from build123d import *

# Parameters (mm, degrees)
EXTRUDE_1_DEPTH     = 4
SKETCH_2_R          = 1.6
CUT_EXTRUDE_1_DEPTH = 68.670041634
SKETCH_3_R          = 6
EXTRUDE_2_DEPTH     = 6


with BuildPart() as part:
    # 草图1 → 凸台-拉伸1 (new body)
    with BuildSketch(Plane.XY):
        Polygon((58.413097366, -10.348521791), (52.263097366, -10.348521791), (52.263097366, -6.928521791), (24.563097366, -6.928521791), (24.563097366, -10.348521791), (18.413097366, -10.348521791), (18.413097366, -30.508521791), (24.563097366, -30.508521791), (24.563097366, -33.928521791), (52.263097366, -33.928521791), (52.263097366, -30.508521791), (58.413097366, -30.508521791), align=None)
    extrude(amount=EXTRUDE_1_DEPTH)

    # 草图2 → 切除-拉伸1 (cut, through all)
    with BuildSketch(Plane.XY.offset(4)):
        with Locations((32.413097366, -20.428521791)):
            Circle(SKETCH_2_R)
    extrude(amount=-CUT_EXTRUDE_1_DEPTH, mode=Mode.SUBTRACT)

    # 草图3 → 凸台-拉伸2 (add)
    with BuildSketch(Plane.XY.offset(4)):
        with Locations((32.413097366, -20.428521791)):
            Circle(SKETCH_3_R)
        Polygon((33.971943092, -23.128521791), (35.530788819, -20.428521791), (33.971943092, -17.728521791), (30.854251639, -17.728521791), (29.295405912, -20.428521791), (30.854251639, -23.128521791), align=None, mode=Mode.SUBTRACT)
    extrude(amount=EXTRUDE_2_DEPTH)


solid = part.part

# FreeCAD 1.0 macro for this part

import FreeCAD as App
import Part
import Sketcher

V = App.Vector
Q = App.Units.Quantity


def add_polygon(sketch, points):
    """Adds a closed chain of lines whose ends are joined by coincident constraints."""
    first, n = sketch.GeometryCount, len(points)
    for a, b in zip(points, points[1:] + points[:1]):
        sketch.addGeometry(Part.LineSegment(App.Vector(*a, 0), App.Vector(*b, 0)), False)
    for i in range(n):
        sketch.addConstraint(Sketcher.Constraint("Coincident", first + i, 2, first + (i + 1) % n, 1))

doc = App.newDocument("Part")
body = doc.addObject("PartDesign::Body", "Body")

# Sketch on XY plane
sketch1 = body.newObject("Sketcher::SketchObject", "Sketch")
sketch1.AttachmentSupport = (doc.getObject("XY_Plane"), [""])
sketch1.MapMode = "FlatFace"
add_polygon(sketch1, [(58.413097, -10.348522), (52.263097, -10.348522), (52.263097, -6.928522), (24.563097, -6.928522), (24.563097, -10.348522), (18.413097, -10.348522), (18.413097, -30.508522), (24.563097, -30.508522), (24.563097, -33.928522), (52.263097, -33.928522), (52.263097, -30.508522), (58.413097, -30.508522)])  # lines 0-11
sketch1.addConstraint(Sketcher.Constraint("Horizontal", 0))
sketch1.addConstraint(Sketcher.Constraint("Vertical", 1))
sketch1.addConstraint(Sketcher.Constraint("Horizontal", 2))
sketch1.addConstraint(Sketcher.Constraint("Vertical", 3))
sketch1.addConstraint(Sketcher.Constraint("Horizontal", 4))
sketch1.addConstraint(Sketcher.Constraint("Vertical", 5))
sketch1.addConstraint(Sketcher.Constraint("Horizontal", 6))
sketch1.addConstraint(Sketcher.Constraint("Vertical", 7))
sketch1.addConstraint(Sketcher.Constraint("Horizontal", 8))
sketch1.addConstraint(Sketcher.Constraint("Vertical", 9))
sketch1.addConstraint(Sketcher.Constraint("Horizontal", 10))
sketch1.addConstraint(Sketcher.Constraint("Vertical", 11))
sketch1.addConstraint(Sketcher.Constraint("Horizontal", 0, 2, 3, 2))
sketch1.addConstraint(Sketcher.Constraint("Horizontal", 6, 2, 9, 2))
sketch1.addConstraint(Sketcher.Constraint("Vertical", 3, 2, 6, 2))
sketch1.addConstraint(Sketcher.Constraint("Vertical", 1, 2, 8, 2))
sketch1.addConstraint(Sketcher.Constraint("Equal", 0, 4))
sketch1.addConstraint(Sketcher.Constraint("Equal", 3, 7))
sketch1.addConstraint(Sketcher.Constraint("DistanceX", 2, 2, 2, 1, Q("27.7 mm")))
sketch1.addConstraint(Sketcher.Constraint("DistanceY", 7, 2, 2, 2, Q("27 mm")))
sketch1.addConstraint(Sketcher.Constraint("DistanceX", 0, 2, 0, 1, Q("6.15 mm")))
sketch1.addConstraint(Sketcher.Constraint("DistanceY", 1, 1, 1, 2, Q("3.42 mm")))
sketch1.addConstraint(Sketcher.Constraint("DistanceY", 0, 2, -1, 1, Q("10.348522 mm")))
sketch1.addConstraint(Sketcher.Constraint("DistanceX", -1, 1, 0, 2, Q("52.263097 mm")))
pad1 = body.newObject("PartDesign::Pad", "Pad")
pad1.Profile = sketch1
pad1.Length = 4

# Sketch on XY plane
sketch2 = body.newObject("Sketcher::SketchObject", "Sketch001")
sketch2.AttachmentSupport = (doc.getObject("XY_Plane"), [""])
sketch2.MapMode = "FlatFace"
sketch2.AttachmentOffset = App.Placement(V(0, 0, 4), App.Rotation())
sketch2.addGeometry(Part.Circle(V(32.413097, -20.428522, 0), V(0, 0, 1), 1.6), False)
sketch2.addConstraint(Sketcher.Constraint("Diameter", 0, Q("3.2 mm")))
sketch2.addConstraint(Sketcher.Constraint("DistanceY", 0, 3, -1, 1, Q("20.428522 mm")))
sketch2.addConstraint(Sketcher.Constraint("DistanceX", -1, 1, 0, 3, Q("32.413097 mm")))
pocket1 = body.newObject("PartDesign::Pocket", "Pocket")
pocket1.Profile = sketch2
pocket1.Type = "ThroughAll"

# Sketch on XY plane
sketch3 = body.newObject("Sketcher::SketchObject", "Sketch002")
sketch3.AttachmentSupport = (doc.getObject("XY_Plane"), [""])
sketch3.MapMode = "FlatFace"
sketch3.AttachmentOffset = App.Placement(V(0, 0, 4), App.Rotation())
sketch3.addGeometry(Part.Circle(V(32.413097, -20.428522, 0), V(0, 0, 1), 6), False)  # 0
add_polygon(sketch3, [(35.530789, -20.428522), (33.971943, -23.128522), (30.854252, -23.128522), (29.295406, -20.428522), (30.854252, -17.728522), (33.971943, -17.728522)])  # lines 1-6
sketch3.addConstraint(Sketcher.Constraint("Horizontal", 2))
sketch3.addConstraint(Sketcher.Constraint("Horizontal", 5))
sketch3.addConstraint(Sketcher.Constraint("Parallel", 1, 4))
sketch3.addConstraint(Sketcher.Constraint("Parallel", 3, 6))
sketch3.addConstraint(Sketcher.Constraint("Horizontal", 0, 3, 3, 2))
sketch3.addConstraint(Sketcher.Constraint("Horizontal", 3, 2, 6, 2))
sketch3.addConstraint(Sketcher.Constraint("Vertical", 2, 2, 4, 2))
sketch3.addConstraint(Sketcher.Constraint("Vertical", 1, 2, 5, 2))
sketch3.addConstraint(Sketcher.Constraint("Diameter", 0, Q("12 mm")))
sketch3.addConstraint(Sketcher.Constraint("Angle", 1, Q("-120 deg")))
sketch3.addConstraint(Sketcher.Constraint("DistanceY", 1, 2, 0, 3, Q("2.7 mm")))
sketch3.addConstraint(Sketcher.Constraint("DistanceX", 2, 2, 2, 1, Q("3.117691 mm")))
sketch3.addConstraint(Sketcher.Constraint("DistanceY", 0, 3, -1, 1, Q("20.428522 mm")))
sketch3.addConstraint(Sketcher.Constraint("DistanceX", -1, 1, 2, 2, Q("30.854252 mm")))
sketch3.addConstraint(Sketcher.Constraint("DistanceX", 3, 2, 0, 3, Q("3.117691 mm")))
pad2 = body.newObject("PartDesign::Pad", "Pad001")
pad2.Profile = sketch3
pad2.Length = 6

doc.recompute()
